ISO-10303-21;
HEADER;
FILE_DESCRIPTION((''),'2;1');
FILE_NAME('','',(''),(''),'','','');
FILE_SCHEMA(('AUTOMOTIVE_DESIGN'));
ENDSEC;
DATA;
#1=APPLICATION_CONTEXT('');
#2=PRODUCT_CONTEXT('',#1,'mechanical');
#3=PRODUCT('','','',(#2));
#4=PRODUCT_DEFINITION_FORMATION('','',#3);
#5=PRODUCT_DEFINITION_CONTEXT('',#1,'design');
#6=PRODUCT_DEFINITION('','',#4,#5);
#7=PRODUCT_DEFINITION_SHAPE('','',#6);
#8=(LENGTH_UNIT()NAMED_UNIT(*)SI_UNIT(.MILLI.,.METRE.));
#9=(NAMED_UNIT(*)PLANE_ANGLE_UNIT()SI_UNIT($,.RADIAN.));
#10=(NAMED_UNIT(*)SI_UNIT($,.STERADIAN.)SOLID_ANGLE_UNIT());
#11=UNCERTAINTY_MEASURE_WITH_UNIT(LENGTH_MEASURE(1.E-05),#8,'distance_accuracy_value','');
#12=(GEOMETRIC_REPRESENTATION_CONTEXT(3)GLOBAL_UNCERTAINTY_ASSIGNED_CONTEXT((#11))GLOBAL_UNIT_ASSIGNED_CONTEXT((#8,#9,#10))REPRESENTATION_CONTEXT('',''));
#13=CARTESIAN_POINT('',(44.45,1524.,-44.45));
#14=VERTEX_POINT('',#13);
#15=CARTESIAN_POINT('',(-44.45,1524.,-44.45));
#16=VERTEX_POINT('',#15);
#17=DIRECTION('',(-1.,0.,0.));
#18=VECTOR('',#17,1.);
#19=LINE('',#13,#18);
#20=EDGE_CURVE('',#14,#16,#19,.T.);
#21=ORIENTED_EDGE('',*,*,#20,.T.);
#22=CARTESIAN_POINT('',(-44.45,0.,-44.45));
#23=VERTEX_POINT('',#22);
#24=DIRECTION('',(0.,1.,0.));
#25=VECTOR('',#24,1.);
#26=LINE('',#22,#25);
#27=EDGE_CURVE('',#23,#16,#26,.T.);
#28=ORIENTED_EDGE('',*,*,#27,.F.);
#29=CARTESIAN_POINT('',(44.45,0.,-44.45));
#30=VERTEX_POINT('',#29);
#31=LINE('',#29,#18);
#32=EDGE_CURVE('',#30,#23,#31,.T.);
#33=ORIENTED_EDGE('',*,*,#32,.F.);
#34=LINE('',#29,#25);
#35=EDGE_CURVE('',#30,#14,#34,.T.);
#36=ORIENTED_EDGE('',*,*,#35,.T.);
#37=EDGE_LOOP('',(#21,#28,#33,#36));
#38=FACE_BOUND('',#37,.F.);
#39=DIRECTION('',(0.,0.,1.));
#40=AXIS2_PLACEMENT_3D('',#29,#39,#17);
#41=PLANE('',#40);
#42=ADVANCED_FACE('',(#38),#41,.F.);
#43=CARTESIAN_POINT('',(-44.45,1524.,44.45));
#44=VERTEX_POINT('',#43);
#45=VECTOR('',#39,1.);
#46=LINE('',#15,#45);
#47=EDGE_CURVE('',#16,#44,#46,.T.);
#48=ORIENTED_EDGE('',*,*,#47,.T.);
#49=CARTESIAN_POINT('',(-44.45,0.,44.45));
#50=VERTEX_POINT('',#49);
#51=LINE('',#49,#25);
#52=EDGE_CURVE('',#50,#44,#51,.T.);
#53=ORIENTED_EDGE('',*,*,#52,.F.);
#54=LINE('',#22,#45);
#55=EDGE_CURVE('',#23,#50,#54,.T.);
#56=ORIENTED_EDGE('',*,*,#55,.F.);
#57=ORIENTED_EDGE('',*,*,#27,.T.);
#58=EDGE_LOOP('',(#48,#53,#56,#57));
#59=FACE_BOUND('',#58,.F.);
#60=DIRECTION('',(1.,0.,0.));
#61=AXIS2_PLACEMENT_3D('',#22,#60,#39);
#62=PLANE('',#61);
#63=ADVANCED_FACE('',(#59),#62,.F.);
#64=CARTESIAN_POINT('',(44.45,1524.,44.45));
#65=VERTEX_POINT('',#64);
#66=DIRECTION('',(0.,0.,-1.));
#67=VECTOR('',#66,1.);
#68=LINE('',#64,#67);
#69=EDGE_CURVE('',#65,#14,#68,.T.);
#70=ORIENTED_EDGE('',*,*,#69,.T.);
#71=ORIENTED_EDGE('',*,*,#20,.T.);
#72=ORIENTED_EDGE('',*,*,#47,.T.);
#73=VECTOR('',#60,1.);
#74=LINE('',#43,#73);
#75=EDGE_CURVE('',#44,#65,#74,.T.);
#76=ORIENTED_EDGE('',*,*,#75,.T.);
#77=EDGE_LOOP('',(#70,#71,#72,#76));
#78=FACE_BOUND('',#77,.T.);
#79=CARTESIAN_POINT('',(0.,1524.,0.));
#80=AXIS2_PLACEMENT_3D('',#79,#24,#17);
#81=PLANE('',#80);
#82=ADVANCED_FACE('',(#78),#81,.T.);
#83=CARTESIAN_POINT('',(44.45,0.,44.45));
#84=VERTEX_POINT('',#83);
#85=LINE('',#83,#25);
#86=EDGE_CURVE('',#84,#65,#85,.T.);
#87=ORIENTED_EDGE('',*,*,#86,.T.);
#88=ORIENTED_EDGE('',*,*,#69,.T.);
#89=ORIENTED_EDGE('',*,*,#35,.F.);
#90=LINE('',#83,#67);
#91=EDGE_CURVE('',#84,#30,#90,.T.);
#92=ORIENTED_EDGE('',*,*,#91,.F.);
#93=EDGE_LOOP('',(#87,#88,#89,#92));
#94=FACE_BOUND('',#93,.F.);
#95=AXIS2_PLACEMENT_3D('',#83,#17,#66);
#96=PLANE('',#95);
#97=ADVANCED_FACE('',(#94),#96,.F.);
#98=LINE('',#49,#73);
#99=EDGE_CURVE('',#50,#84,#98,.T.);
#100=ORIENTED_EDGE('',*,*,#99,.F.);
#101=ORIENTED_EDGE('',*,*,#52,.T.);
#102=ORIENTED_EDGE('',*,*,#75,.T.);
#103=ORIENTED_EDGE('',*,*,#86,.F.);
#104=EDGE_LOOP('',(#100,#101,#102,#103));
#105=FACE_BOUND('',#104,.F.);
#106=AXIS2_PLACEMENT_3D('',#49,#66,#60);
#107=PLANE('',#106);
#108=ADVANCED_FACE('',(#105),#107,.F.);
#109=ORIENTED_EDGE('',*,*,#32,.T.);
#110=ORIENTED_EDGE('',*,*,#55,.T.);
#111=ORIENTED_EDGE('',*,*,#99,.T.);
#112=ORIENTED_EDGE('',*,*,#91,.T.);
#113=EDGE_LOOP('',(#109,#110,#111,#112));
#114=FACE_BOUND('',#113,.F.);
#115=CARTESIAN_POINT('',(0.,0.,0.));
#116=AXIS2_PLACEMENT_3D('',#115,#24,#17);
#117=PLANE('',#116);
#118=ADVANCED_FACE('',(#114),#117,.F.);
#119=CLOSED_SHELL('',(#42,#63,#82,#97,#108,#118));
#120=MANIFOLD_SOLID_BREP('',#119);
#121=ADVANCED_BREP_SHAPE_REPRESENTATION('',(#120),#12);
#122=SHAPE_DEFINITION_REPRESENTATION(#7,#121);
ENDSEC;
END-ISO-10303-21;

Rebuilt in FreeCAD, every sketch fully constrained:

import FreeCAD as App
import Part
import Sketcher

V = App.Vector
Q = App.Units.Quantity


def add_polygon(sketch, points):
    """Adds a closed chain of lines whose ends are joined by coincident constraints."""
    first, n = sketch.GeometryCount, len(points)
    for a, b in zip(points, points[1:] + points[:1]):
        sketch.addGeometry(Part.LineSegment(App.Vector(*a, 0), App.Vector(*b, 0)), False)
    for i in range(n):
        sketch.addConstraint(Sketcher.Constraint("Coincident", first + i, 2, first + (i + 1) % n, 1))

doc = App.newDocument("Part")
body = doc.addObject("PartDesign::Body", "Body")

# Sketch on XZ plane
sketch1 = body.newObject("Sketcher::SketchObject", "Sketch")
sketch1.AttachmentSupport = (doc.getObject("XZ_Plane"), [""])
sketch1.MapMode = "FlatFace"
add_polygon(sketch1, [(-44, 44), (44, 44), (44, -44), (-44, -44)])  # lines 0-3
sketch1.addConstraint(Sketcher.Constraint("Horizontal", 0))
sketch1.addConstraint(Sketcher.Constraint("Vertical", 1))
sketch1.addConstraint(Sketcher.Constraint("Horizontal", 2))
sketch1.addConstraint(Sketcher.Constraint("Vertical", 3))
sketch1.addConstraint(Sketcher.Constraint("Symmetric", 0, 2, 2, 2, -1, 1))
sketch1.addConstraint(Sketcher.Constraint("Equal", 2, 1))
sketch1.addConstraint(Sketcher.Constraint("DistanceX", 0, 1, 0, 2, Q("3.5 in")))
pad1 = body.newObject("PartDesign::Pad", "Pad")
pad1.Profile = sketch1
pad1.Length = Q("60 in")
pad1.Reversed = True

doc.recompute()
